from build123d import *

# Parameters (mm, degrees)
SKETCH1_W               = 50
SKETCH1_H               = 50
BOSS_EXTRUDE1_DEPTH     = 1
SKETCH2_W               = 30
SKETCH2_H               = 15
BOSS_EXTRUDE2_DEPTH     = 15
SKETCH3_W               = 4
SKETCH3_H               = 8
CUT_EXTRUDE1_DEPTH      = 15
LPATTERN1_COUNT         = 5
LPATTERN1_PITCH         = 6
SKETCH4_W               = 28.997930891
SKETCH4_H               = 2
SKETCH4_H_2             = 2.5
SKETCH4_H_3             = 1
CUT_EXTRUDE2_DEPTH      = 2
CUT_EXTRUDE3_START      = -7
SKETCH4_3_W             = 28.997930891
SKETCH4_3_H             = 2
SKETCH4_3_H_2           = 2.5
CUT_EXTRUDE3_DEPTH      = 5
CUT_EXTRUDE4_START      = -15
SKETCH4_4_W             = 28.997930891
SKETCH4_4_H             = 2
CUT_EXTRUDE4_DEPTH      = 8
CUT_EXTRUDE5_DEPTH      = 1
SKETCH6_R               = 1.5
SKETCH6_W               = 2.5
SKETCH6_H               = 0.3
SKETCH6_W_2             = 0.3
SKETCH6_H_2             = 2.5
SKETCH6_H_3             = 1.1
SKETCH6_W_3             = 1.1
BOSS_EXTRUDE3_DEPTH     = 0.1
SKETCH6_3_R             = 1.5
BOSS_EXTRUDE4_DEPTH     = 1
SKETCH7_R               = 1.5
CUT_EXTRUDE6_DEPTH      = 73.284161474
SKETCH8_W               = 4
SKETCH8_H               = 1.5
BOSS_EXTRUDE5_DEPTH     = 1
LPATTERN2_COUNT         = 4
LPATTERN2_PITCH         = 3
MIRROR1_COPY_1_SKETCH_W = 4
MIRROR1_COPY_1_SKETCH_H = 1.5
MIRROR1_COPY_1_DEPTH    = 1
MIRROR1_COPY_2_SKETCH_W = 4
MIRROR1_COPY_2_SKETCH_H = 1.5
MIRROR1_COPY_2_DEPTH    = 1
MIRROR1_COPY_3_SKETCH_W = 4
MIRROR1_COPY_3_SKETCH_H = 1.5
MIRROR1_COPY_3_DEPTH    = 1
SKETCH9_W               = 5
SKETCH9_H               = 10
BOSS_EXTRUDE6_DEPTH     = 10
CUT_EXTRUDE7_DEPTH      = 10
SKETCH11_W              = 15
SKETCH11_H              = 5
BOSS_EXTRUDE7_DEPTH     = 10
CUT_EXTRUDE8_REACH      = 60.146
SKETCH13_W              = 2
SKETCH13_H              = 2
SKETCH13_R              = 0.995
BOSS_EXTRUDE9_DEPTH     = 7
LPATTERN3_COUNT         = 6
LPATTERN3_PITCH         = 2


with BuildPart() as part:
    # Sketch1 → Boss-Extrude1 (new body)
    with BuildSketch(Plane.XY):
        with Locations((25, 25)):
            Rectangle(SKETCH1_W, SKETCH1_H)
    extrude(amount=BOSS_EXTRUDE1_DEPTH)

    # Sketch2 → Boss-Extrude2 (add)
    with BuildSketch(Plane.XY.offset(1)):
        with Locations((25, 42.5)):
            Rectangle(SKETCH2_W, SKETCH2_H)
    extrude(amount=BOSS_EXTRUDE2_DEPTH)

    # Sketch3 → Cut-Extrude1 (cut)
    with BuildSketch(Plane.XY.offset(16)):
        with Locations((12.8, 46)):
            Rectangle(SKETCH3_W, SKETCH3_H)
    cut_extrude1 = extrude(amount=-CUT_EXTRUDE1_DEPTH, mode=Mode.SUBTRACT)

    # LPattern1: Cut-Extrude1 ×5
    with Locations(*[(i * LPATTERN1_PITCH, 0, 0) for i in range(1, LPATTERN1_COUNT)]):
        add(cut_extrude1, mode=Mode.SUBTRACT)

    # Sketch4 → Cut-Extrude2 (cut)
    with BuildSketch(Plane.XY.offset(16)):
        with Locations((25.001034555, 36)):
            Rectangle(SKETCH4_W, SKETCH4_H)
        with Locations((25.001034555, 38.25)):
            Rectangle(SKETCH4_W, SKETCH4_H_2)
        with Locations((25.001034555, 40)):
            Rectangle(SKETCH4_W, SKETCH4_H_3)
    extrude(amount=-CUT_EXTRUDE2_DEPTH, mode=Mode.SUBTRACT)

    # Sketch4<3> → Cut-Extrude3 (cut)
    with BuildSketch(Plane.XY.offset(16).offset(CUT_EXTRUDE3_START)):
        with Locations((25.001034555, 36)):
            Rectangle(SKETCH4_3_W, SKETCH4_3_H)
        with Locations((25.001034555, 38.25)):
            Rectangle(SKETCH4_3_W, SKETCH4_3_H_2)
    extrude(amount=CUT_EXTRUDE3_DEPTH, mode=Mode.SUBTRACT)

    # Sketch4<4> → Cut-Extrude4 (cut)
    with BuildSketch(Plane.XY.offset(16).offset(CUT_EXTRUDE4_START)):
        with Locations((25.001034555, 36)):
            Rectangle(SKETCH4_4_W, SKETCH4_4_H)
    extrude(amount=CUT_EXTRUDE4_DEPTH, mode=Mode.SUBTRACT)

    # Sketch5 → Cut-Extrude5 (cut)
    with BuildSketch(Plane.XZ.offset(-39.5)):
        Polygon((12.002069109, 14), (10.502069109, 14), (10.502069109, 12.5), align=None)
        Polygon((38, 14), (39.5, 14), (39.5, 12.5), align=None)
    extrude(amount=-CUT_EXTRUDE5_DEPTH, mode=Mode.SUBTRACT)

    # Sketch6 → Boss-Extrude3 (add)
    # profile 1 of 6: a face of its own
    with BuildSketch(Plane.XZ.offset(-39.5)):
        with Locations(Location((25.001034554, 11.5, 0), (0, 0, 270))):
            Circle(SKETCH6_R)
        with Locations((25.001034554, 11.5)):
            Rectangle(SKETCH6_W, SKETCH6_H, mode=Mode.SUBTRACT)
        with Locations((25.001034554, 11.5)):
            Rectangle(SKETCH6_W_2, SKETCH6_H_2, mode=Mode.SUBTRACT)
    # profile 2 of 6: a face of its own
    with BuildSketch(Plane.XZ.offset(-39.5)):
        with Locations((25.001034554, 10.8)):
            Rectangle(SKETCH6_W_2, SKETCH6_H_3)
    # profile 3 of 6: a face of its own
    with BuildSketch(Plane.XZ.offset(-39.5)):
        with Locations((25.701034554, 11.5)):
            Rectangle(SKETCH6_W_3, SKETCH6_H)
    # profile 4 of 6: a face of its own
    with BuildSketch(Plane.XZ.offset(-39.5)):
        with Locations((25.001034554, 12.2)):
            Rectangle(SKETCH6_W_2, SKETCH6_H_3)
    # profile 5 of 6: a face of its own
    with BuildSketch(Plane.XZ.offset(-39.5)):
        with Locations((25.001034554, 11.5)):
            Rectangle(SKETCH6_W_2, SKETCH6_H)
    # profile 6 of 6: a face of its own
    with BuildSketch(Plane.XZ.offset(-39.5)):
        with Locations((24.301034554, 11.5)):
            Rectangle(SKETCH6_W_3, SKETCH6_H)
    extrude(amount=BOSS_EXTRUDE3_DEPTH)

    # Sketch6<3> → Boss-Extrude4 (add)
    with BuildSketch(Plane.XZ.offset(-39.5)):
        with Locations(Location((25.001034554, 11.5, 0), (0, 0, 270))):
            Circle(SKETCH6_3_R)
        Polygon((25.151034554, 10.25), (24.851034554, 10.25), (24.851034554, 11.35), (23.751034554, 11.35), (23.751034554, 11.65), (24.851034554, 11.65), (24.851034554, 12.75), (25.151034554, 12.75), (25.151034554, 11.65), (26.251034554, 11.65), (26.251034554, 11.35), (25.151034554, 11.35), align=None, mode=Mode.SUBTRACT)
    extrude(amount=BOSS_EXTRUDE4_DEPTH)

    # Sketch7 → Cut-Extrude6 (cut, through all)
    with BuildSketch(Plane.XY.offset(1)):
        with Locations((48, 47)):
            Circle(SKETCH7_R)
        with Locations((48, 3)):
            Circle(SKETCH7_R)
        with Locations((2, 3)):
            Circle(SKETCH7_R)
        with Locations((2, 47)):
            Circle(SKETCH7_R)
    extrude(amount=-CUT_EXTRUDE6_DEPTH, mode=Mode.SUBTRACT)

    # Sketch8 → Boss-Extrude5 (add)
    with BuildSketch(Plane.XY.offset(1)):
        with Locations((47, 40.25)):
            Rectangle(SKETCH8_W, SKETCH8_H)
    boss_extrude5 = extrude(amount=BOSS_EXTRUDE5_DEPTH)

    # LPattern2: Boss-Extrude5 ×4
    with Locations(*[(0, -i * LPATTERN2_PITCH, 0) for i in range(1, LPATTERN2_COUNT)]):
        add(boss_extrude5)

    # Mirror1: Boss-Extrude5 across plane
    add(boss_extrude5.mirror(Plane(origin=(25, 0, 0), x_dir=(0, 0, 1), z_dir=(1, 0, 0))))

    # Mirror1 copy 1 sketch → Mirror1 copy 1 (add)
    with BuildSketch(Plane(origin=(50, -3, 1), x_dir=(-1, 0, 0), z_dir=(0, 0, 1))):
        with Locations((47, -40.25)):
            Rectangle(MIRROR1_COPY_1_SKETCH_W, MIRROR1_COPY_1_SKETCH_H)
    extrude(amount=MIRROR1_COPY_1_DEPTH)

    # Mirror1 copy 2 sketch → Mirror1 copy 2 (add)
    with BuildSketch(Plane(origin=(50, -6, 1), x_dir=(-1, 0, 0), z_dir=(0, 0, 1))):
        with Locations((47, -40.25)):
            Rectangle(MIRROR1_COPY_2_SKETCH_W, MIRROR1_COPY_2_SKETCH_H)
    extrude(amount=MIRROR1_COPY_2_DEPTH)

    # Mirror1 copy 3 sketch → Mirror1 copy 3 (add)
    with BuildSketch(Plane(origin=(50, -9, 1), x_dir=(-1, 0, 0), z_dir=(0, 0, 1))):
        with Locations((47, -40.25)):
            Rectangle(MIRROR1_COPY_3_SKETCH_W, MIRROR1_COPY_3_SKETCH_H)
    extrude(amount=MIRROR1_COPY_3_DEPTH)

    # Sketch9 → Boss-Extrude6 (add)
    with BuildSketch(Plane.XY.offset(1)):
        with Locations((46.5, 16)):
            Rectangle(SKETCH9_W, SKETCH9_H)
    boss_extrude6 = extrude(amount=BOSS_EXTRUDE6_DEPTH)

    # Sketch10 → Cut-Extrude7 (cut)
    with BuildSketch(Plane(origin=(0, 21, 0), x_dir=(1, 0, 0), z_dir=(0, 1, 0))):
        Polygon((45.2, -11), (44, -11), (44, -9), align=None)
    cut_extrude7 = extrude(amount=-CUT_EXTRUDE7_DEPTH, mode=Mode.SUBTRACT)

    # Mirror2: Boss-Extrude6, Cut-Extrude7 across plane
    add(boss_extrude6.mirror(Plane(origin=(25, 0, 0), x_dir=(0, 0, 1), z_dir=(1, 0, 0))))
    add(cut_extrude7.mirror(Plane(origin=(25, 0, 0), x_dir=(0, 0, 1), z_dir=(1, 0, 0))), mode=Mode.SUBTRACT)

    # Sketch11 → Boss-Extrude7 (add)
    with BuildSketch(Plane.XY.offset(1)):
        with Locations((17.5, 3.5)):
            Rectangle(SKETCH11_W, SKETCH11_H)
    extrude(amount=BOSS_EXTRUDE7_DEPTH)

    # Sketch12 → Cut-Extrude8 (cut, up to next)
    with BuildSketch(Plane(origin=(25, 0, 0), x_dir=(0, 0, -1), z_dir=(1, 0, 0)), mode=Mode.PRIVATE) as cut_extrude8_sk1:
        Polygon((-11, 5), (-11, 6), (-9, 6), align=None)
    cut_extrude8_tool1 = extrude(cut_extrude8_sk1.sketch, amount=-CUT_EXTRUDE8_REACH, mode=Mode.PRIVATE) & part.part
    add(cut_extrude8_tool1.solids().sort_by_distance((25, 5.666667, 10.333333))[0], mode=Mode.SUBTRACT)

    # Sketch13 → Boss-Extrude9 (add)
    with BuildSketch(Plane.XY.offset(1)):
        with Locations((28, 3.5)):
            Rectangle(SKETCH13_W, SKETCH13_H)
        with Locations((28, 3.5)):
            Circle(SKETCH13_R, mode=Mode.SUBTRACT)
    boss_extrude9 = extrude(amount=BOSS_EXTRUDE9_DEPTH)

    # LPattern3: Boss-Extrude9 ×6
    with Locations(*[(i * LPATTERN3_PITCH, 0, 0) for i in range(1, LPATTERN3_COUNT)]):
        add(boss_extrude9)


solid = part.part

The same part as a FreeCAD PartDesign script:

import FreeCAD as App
import Part
import Sketcher
Q = App.Units.Quantity


def add_polygon(sketch, points):
    """Adds a closed chain of lines whose ends are joined by coincident constraints."""
    first, n = sketch.GeometryCount, len(points)
    for a, b in zip(points, points[1:] + points[:1]):
        sketch.addGeometry(Part.LineSegment(App.Vector(*a, 0), App.Vector(*b, 0)), False)
    for i in range(n):
        sketch.addConstraint(Sketcher.Constraint("Coincident", first + i, 2, first + (i + 1) % n, 1))

doc = App.newDocument("Part")
body = doc.addObject("PartDesign::Body", "Body")

sketch1 = doc.addObject("Sketcher::SketchObject", "Sketch")
body.addObject(sketch1)
sketch1.AttachmentSupport = (doc.XY_Plane, [""])
sketch1.MapMode = "FlatFace"
add_polygon(sketch1, [(0, 50), (0, 0), (50, 0), (50, 50)])
sketch1.addConstraint([
    Sketcher.Constraint("Vertical", 0),
    Sketcher.Constraint("Horizontal", 1),
    Sketcher.Constraint("Vertical", 2),
    Sketcher.Constraint("Horizontal", 3),
    Sketcher.Constraint("Coincident", 0, 2, -1, 1),
    Sketcher.Constraint("Equal", 3, 0),
    Sketcher.Constraint("DistanceX", 1, 1, 1, 2, Q("50 mm")),
])
pad1 = doc.addObject("PartDesign::Pad", "Pad")
body.addObject(pad1)
pad1.Profile = sketch1
pad1.Length = 1

sketch2 = doc.addObject("Sketcher::SketchObject", "Sketch001")
body.addObject(sketch2)
sketch2.AttachmentSupport = (doc.XY_Plane, [""])
sketch2.MapMode = "FlatFace"
sketch2.AttachmentOffset = App.Placement(App.Vector(0, 0, 1), App.Rotation())
add_polygon(sketch2, [(10, 50), (10, 35), (40, 35), (40, 50)])
sketch2.addConstraint([
    Sketcher.Constraint("Vertical", 0),
    Sketcher.Constraint("Horizontal", 1),
    Sketcher.Constraint("Vertical", 2),
    Sketcher.Constraint("Horizontal", 3),
    Sketcher.Constraint("DistanceX", 1, 1, 1, 2, Q("30 mm")),
    Sketcher.Constraint("DistanceY", 0, 2, 0, 1, Q("15 mm")),
    Sketcher.Constraint("DistanceX", -1, 1, 0, 2, Q("10 mm")),
    Sketcher.Constraint("DistanceY", -1, 1, 0, 2, Q("35 mm")),
])
pad2 = doc.addObject("PartDesign::Pad", "Pad001")
body.addObject(pad2)
pad2.Profile = sketch2
pad2.Length = 15

sketch3 = doc.addObject("Sketcher::SketchObject", "Sketch002")
body.addObject(sketch3)
sketch3.AttachmentSupport = (doc.XY_Plane, [""])
sketch3.MapMode = "FlatFace"
sketch3.AttachmentOffset = App.Placement(App.Vector(0, 0, 16), App.Rotation())
add_polygon(sketch3, [(10.8, 50), (10.8, 42), (14.8, 42), (14.8, 50)])
sketch3.addConstraint([
    Sketcher.Constraint("Vertical", 0),
    Sketcher.Constraint("Horizontal", 1),
    Sketcher.Constraint("Vertical", 2),
    Sketcher.Constraint("Horizontal", 3),
    Sketcher.Constraint("DistanceX", 1, 1, 1, 2, Q("4 mm")),
    Sketcher.Constraint("DistanceY", 0, 2, 0, 1, Q("8 mm")),
    Sketcher.Constraint("DistanceY", -1, 1, 0, 2, Q("42 mm")),
    Sketcher.Constraint("DistanceX", -1, 1, 0, 2, Q("10.8 mm")),
])
pocket1 = doc.addObject("PartDesign::Pocket", "Pocket")
body.addObject(pocket1)
pocket1.Profile = sketch3
pocket1.Length = 15
doc.recompute()

linearpattern = doc.addObject("PartDesign::LinearPattern", "LinearPattern")
body.addObject(linearpattern)
linearpattern.Originals = [pocket1]
linearpattern.Direction = (doc.X_Axis, [""])
linearpattern.Mode = "offset"
linearpattern.Offset = 6
linearpattern.Occurrences = 5
body.Tip = linearpattern

sketch4 = doc.addObject("Sketcher::SketchObject", "Sketch003")
body.addObject(sketch4)
sketch4.AttachmentSupport = (doc.XY_Plane, [""])
sketch4.MapMode = "FlatFace"
sketch4.AttachmentOffset = App.Placement(App.Vector(0, 0, 16), App.Rotation())
add_polygon(sketch4, [(10.502069, 35), (39.5, 35), (39.5, 40.5), (10.502069, 40.5)])
sketch4.addConstraint([
    Sketcher.Constraint("Horizontal", 0),
    Sketcher.Constraint("Vertical", 1),
    Sketcher.Constraint("Horizontal", 2),
    Sketcher.Constraint("Vertical", 3),
    Sketcher.Constraint("DistanceY", 1, 1, 1, 2, Q("5.5 mm")),
    Sketcher.Constraint("DistanceY", -1, 1, 0, 2, Q("35 mm")),
    Sketcher.Constraint("DistanceX", -1, 1, 0, 2, Q("39.5 mm")),
    Sketcher.Constraint("DistanceX", 0, 1, 0, 2, Q("28.997931 mm")),
])
pocket2 = doc.addObject("PartDesign::Pocket", "Pocket001")
body.addObject(pocket2)
pocket2.Profile = sketch4
pocket2.Length = 2

sketch5 = doc.addObject("Sketcher::SketchObject", "Sketch004")
body.addObject(sketch5)
sketch5.AttachmentSupport = (doc.XY_Plane, [""])
sketch5.MapMode = "FlatFace"
sketch5.AttachmentOffset = App.Placement(App.Vector(0, 0, 9), App.Rotation())
add_polygon(sketch5, [(10.502069, 35), (39.5, 35), (39.5, 39.5), (10.502069, 39.5)])
sketch5.addConstraint([
    Sketcher.Constraint("Horizontal", 0),
    Sketcher.Constraint("Vertical", 1),
    Sketcher.Constraint("Horizontal", 2),
    Sketcher.Constraint("Vertical", 3),
    Sketcher.Constraint("DistanceY", 1, 1, 1, 2, Q("4.5 mm")),
    Sketcher.Constraint("DistanceY", -1, 1, 0, 2, Q("35 mm")),
    Sketcher.Constraint("DistanceX", -1, 1, 0, 2, Q("39.5 mm")),
    Sketcher.Constraint("DistanceX", 0, 1, 0, 2, Q("28.997931 mm")),
])
pocket3 = doc.addObject("PartDesign::Pocket", "Pocket002")
body.addObject(pocket3)
pocket3.Profile = sketch5
pocket3.Length = 5
pocket3.Reversed = True

sketch6 = doc.addObject("Sketcher::SketchObject", "Sketch005")
body.addObject(sketch6)
sketch6.AttachmentSupport = (doc.XY_Plane, [""])
sketch6.MapMode = "FlatFace"
sketch6.AttachmentOffset = App.Placement(App.Vector(0, 0, 1), App.Rotation())
add_polygon(sketch6, [(10.502069, 37), (10.502069, 35), (39.5, 35), (39.5, 37)])
sketch6.addConstraint([
    Sketcher.Constraint("Vertical", 0),
    Sketcher.Constraint("Horizontal", 1),
    Sketcher.Constraint("Vertical", 2),
    Sketcher.Constraint("Horizontal", 3),
    Sketcher.Constraint("DistanceY", 0, 2, 0, 1, Q("2 mm")),
    Sketcher.Constraint("DistanceY", -1, 1, 0, 2, Q("35 mm")),
    Sketcher.Constraint("DistanceX", -1, 1, 1, 2, Q("39.5 mm")),
    Sketcher.Constraint("DistanceX", 1, 1, 1, 2, Q("28.997931 mm")),
])
pocket4 = doc.addObject("PartDesign::Pocket", "Pocket003")
body.addObject(pocket4)
pocket4.Profile = sketch6
pocket4.Length = 8
pocket4.Reversed = True

sketch7 = doc.addObject("Sketcher::SketchObject", "Sketch006")
body.addObject(sketch7)
sketch7.AttachmentSupport = (doc.XZ_Plane, [""])
sketch7.MapMode = "FlatFace"
sketch7.AttachmentOffset = App.Placement(App.Vector(0, 0, -39.5), App.Rotation())
add_polygon(sketch7, [(12.002069, 14), (10.502069, 14), (10.502069, 12.5)])
add_polygon(sketch7, [(39.5, 14), (38, 14), (39.5, 12.5)])
sketch7.addConstraint([
    Sketcher.Constraint("Horizontal", 0),
    Sketcher.Constraint("Vertical", 1),
    Sketcher.Constraint("Horizontal", 3),
    Sketcher.Constraint("Vertical", 5),
    Sketcher.Constraint("Perpendicular", 2, 4),
    Sketcher.Constraint("Horizontal", 2, 2, 3, 2),
    Sketcher.Constraint("Horizontal", 1, 2, 4, 2),
    Sketcher.Constraint("Equal", 0, 3),
    Sketcher.Constraint("DistanceX", 0, 2, 0, 1, Q("1.5 mm")),
    Sketcher.Constraint("DistanceY", -1, 1, 0, 2, Q("14 mm")),
    Sketcher.Constraint("DistanceX", -1, 1, 3, 2, Q("38 mm")),
    Sketcher.Constraint("DistanceX", -1, 1, 0, 2, Q("10.502069 mm")),
])
pocket5 = doc.addObject("PartDesign::Pocket", "Pocket004")
body.addObject(pocket5)
pocket5.Profile = sketch7
pocket5.Length = 1

sketch8 = doc.addObject("Sketcher::SketchObject", "Sketch007")
body.addObject(sketch8)
sketch8.AttachmentSupport = (doc.XZ_Plane, [""])
sketch8.MapMode = "FlatFace"
sketch8.AttachmentOffset = App.Placement(App.Vector(0, 0, -39.5), App.Rotation())
sketch8.addGeometry(Part.Circle(App.Vector(25.001035, 11.5, 0), App.Vector(0, 0, 1), 1.5), False)
sketch8.addConstraint([
    Sketcher.Constraint("Diameter", 0, Q("3 mm")),
    Sketcher.Constraint("DistanceY", -1, 1, 0, 3, Q("11.5 mm")),
    Sketcher.Constraint("DistanceX", -1, 1, 0, 3, Q("25.001035 mm")),
])
pad3 = doc.addObject("PartDesign::Pad", "Pad002")
body.addObject(pad3)
pad3.Profile = sketch8
pad3.Length = 0.1

sketch9 = doc.addObject("Sketcher::SketchObject", "Sketch008")
body.addObject(sketch9)
sketch9.AttachmentSupport = (doc.XZ_Plane, [""])
sketch9.MapMode = "FlatFace"
sketch9.AttachmentOffset = App.Placement(App.Vector(0, 0, -39.5), App.Rotation())
sketch9.addGeometry(Part.Circle(App.Vector(25.001035, 11.5, 0), App.Vector(0, 0, 1), 1.5), False)
add_polygon(sketch9, [(25.151035, 11.35), (25.151035, 10.25), (24.851035, 10.25), (24.851035, 11.35), (23.751035, 11.35), (23.751035, 11.65), (24.851035, 11.65), (24.851035, 12.75), (25.151035, 12.75), (25.151035, 11.65), (26.251035, 11.65), (26.251035, 11.35)])
sketch9.addConstraint([
    Sketcher.Constraint("Vertical", 1),
    Sketcher.Constraint("Horizontal", 2),
    Sketcher.Constraint("Vertical", 3),
    Sketcher.Constraint("Horizontal", 4),
    Sketcher.Constraint("Vertical", 5),
    Sketcher.Constraint("Horizontal", 6),
    Sketcher.Constraint("Vertical", 7),
    Sketcher.Constraint("Horizontal", 8),
    Sketcher.Constraint("Vertical", 9),
    Sketcher.Constraint("Horizontal", 10),
    Sketcher.Constraint("Vertical", 11),
    Sketcher.Constraint("Horizontal", 12),
    Sketcher.Constraint("Horizontal", 6, 2, 9, 2),
    Sketcher.Constraint("Horizontal", 4, 2, 11, 2),
    Sketcher.Constraint("Vertical", 3, 2, 6, 2),
    Sketcher.Constraint("Vertical", 1, 2, 8, 2),
    Sketcher.Constraint("Equal", 6, 10),
    Sketcher.Constraint("Equal", 12, 1),
    Sketcher.Constraint("Equal", 8, 5),
    Sketcher.Constraint("Equal", 3, 7),
    Sketcher.Constraint("Diameter", 0, Q("3 mm")),
    Sketcher.Constraint("DistanceX", 2, 2, 2, 1, Q("0.3 mm")),
    Sketcher.Constraint("DistanceX", 4, 2, 4, 1, Q("1.1 mm")),
    Sketcher.Constraint("DistanceY", -1, 1, 0, 3, Q("11.5 mm")),
    Sketcher.Constraint("DistanceY", -1, 1, 1, 2, Q("10.25 mm")),
    Sketcher.Constraint("DistanceX", 0, 3, 1, 2, Q("0.15 mm")),
    Sketcher.Constraint("DistanceX", -1, 1, 0, 3, Q("25.001035 mm")),
])
pad4 = doc.addObject("PartDesign::Pad", "Pad003")
body.addObject(pad4)
pad4.Profile = sketch9
pad4.Length = 1

sketch10 = doc.addObject("Sketcher::SketchObject", "Sketch009")
body.addObject(sketch10)
sketch10.AttachmentSupport = (doc.XY_Plane, [""])
sketch10.MapMode = "FlatFace"
sketch10.AttachmentOffset = App.Placement(App.Vector(0, 0, 1), App.Rotation())
sketch10.addGeometry([
    Part.Circle(App.Vector(48, 47, 0), App.Vector(0, 0, 1), 1.5),
    Part.Circle(App.Vector(48, 3, 0), App.Vector(0, 0, 1), 1.5),
    Part.Circle(App.Vector(2, 3, 0), App.Vector(0, 0, 1), 1.5),
    Part.Circle(App.Vector(2, 47, 0), App.Vector(0, 0, 1), 1.5),
], False)
sketch10.addConstraint([
    Sketcher.Constraint("Equal", 0, 1),
    Sketcher.Constraint("Equal", 1, 2),
    Sketcher.Constraint("Equal", 2, 3),
    Sketcher.Constraint("Horizontal", 1, 3, 2, 3),
    Sketcher.Constraint("Horizontal", 0, 3, 3, 3),
    Sketcher.Constraint("Vertical", 0, 3, 1, 3),
    Sketcher.Constraint("Vertical", 2, 3, 3, 3),
    Sketcher.Constraint("Diameter", 0, Q("3 mm")),
    Sketcher.Constraint("DistanceX", -1, 1, 0, 3, Q("48 mm")),
    Sketcher.Constraint("DistanceY", -1, 1, 0, 3, Q("47 mm")),
    Sketcher.Constraint("DistanceY", -1, 1, 1, 3, Q("3 mm")),
    Sketcher.Constraint("DistanceX", -1, 1, 2, 3, Q("2 mm")),
])
pocket6 = doc.addObject("PartDesign::Pocket", "Pocket005")
body.addObject(pocket6)
pocket6.Profile = sketch10
pocket6.Type = "ThroughAll"

sketch11 = doc.addObject("Sketcher::SketchObject", "Sketch010")
body.addObject(sketch11)
sketch11.AttachmentSupport = (doc.XY_Plane, [""])
sketch11.MapMode = "FlatFace"
sketch11.AttachmentOffset = App.Placement(App.Vector(0, 0, 1), App.Rotation())
add_polygon(sketch11, [(45, 41), (45, 39.5), (49, 39.5), (49, 41)])
sketch11.addConstraint([
    Sketcher.Constraint("Vertical", 0),
    Sketcher.Constraint("Horizontal", 1),
    Sketcher.Constraint("Vertical", 2),
    Sketcher.Constraint("Horizontal", 3),
    Sketcher.Constraint("DistanceX", 1, 1, 1, 2, Q("4 mm")),
    Sketcher.Constraint("DistanceY", 0, 2, 0, 1, Q("1.5 mm")),
    Sketcher.Constraint("DistanceX", -1, 1, 0, 2, Q("45 mm")),
    Sketcher.Constraint("DistanceY", -1, 1, 2, 2, Q("41 mm")),
])
pad5 = doc.addObject("PartDesign::Pad", "Pad004")
body.addObject(pad5)
pad5.Profile = sketch11
pad5.Length = 1
doc.recompute()

linearpattern2 = doc.addObject("PartDesign::LinearPattern", "LinearPattern001")
body.addObject(linearpattern2)
linearpattern2.Originals = [pad5]
linearpattern2.Direction = (doc.Y_Axis, [""])
linearpattern2.Mode = "offset"
linearpattern2.Offset = 3
linearpattern2.Occurrences = 4
linearpattern2.Reversed = True
body.Tip = linearpattern2
doc.recompute()

datumplane = doc.addObject("PartDesign::Plane", "DatumPlane")
body.addObject(datumplane)
datumplane.AttachmentSupport = (doc.YZ_Plane, [""])
datumplane.MapMode = "FlatFace"
datumplane.AttachmentOffset = App.Placement(App.Vector(0, 0, 25), App.Rotation())
mirrored = doc.addObject("PartDesign::Mirrored", "Mirrored")
body.addObject(mirrored)
mirrored.Originals = [pad5]
mirrored.MirrorPlane = (datumplane, [""])
body.Tip = mirrored

sketch12 = doc.addObject("Sketcher::SketchObject", "Sketch011")
body.addObject(sketch12)
sketch12.AttachmentSupport = (doc.XY_Plane, [""])
sketch12.MapMode = "FlatFace"
sketch12.AttachmentOffset = App.Placement(App.Vector(0, 0, 1), App.Rotation())
add_polygon(sketch12, [(5, 36.5), (5, 38), (1, 38), (1, 36.5)])
sketch12.addConstraint([
    Sketcher.Constraint("Vertical", 0),
    Sketcher.Constraint("Horizontal", 1),
    Sketcher.Constraint("Vertical", 2),
    Sketcher.Constraint("Horizontal", 3),
    Sketcher.Constraint("DistanceX", 1, 2, 1, 1, Q("4 mm")),
    Sketcher.Constraint("DistanceY", 0, 1, 0, 2, Q("1.5 mm")),
    Sketcher.Constraint("DistanceX", -1, 1, 0, 2, Q("5 mm")),
    Sketcher.Constraint("DistanceY", -1, 1, 0, 2, Q("38 mm")),
])
pad6 = doc.addObject("PartDesign::Pad", "Pad005")
body.addObject(pad6)
pad6.Profile = sketch12
pad6.Length = 1

sketch13 = doc.addObject("Sketcher::SketchObject", "Sketch012")
body.addObject(sketch13)
sketch13.AttachmentSupport = (doc.XY_Plane, [""])
sketch13.MapMode = "FlatFace"
sketch13.AttachmentOffset = App.Placement(App.Vector(0, 0, 1), App.Rotation())
add_polygon(sketch13, [(5, 33.5), (5, 35), (1, 35), (1, 33.5)])
sketch13.addConstraint([
    Sketcher.Constraint("Vertical", 0),
    Sketcher.Constraint("Horizontal", 1),
    Sketcher.Constraint("Vertical", 2),
    Sketcher.Constraint("Horizontal", 3),
    Sketcher.Constraint("DistanceX", 1, 2, 1, 1, Q("4 mm")),
    Sketcher.Constraint("DistanceY", 0, 1, 0, 2, Q("1.5 mm")),
    Sketcher.Constraint("DistanceX", -1, 1, 0, 2, Q("5 mm")),
    Sketcher.Constraint("DistanceY", -1, 1, 0, 2, Q("35 mm")),
])
pad7 = doc.addObject("PartDesign::Pad", "Pad006")
body.addObject(pad7)
pad7.Profile = sketch13
pad7.Length = 1

sketch14 = doc.addObject("Sketcher::SketchObject", "Sketch013")
body.addObject(sketch14)
sketch14.AttachmentSupport = (doc.XY_Plane, [""])
sketch14.MapMode = "FlatFace"
sketch14.AttachmentOffset = App.Placement(App.Vector(0, 0, 1), App.Rotation())
add_polygon(sketch14, [(5, 30.5), (5, 32), (1, 32), (1, 30.5)])
sketch14.addConstraint([
    Sketcher.Constraint("Vertical", 0),
    Sketcher.Constraint("Horizontal", 1),
    Sketcher.Constraint("Vertical", 2),
    Sketcher.Constraint("Horizontal", 3),
    Sketcher.Constraint("DistanceX", 1, 2, 1, 1, Q("4 mm")),
    Sketcher.Constraint("DistanceY", 0, 1, 0, 2, Q("1.5 mm")),
    Sketcher.Constraint("DistanceX", -1, 1, 0, 2, Q("5 mm")),
    Sketcher.Constraint("DistanceY", -1, 1, 0, 2, Q("32 mm")),
])
pad8 = doc.addObject("PartDesign::Pad", "Pad007")
body.addObject(pad8)
pad8.Profile = sketch14
pad8.Length = 1

sketch15 = doc.addObject("Sketcher::SketchObject", "Sketch014")
body.addObject(sketch15)
sketch15.AttachmentSupport = (doc.XY_Plane, [""])
sketch15.MapMode = "FlatFace"
sketch15.AttachmentOffset = App.Placement(App.Vector(0, 0, 1), App.Rotation())
add_polygon(sketch15, [(44, 21), (44, 11), (49, 11), (49, 21)])
sketch15.addConstraint([
    Sketcher.Constraint("Vertical", 0),
    Sketcher.Constraint("Horizontal", 1),
    Sketcher.Constraint("Vertical", 2),
    Sketcher.Constraint("Horizontal", 3),
    Sketcher.Constraint("DistanceX", 1, 1, 1, 2, Q("5 mm")),
    Sketcher.Constraint("DistanceY", 0, 2, 0, 1, Q("10 mm")),
    Sketcher.Constraint("DistanceX", -1, 1, 0, 2, Q("44 mm")),
    Sketcher.Constraint("DistanceY", -1, 1, 0, 2, Q("11 mm")),
])
pad9 = doc.addObject("PartDesign::Pad", "Pad008")
body.addObject(pad9)
pad9.Profile = sketch15
pad9.Length = 10

sketch16 = doc.addObject("Sketcher::SketchObject", "Sketch015")
body.addObject(sketch16)
sketch16.AttachmentSupport = (doc.XZ_Plane, [""])
sketch16.MapMode = "FlatFace"
sketch16.AttachmentOffset = App.Placement(App.Vector(0, 0, -21), App.Rotation())
add_polygon(sketch16, [(44, 11), (45.2, 11), (44, 9)])
sketch16.addConstraint([
    Sketcher.Constraint("Horizontal", 0),
    Sketcher.Constraint("Vertical", 2),
    Sketcher.Constraint("DistanceY", 2, 1, 2, 2, Q("2 mm")),
    Sketcher.Constraint("DistanceX", 0, 1, 0, 2, Q("1.2 mm")),
    Sketcher.Constraint("DistanceY", -1, 1, 0, 2, Q("11 mm")),
    Sketcher.Constraint("DistanceX", -1, 1, 1, 2, Q("44 mm")),
])
pocket7 = doc.addObject("PartDesign::Pocket", "Pocket006")
body.addObject(pocket7)
pocket7.Profile = sketch16
pocket7.Length = 10
pocket7.Reversed = True
doc.recompute()

datumplane2 = doc.addObject("PartDesign::Plane", "DatumPlane001")
body.addObject(datumplane2)
datumplane2.AttachmentSupport = (doc.YZ_Plane, [""])
datumplane2.MapMode = "FlatFace"
datumplane2.AttachmentOffset = App.Placement(App.Vector(0, 0, 25), App.Rotation())
mirrored2 = doc.addObject("PartDesign::Mirrored", "Mirrored001")
body.addObject(mirrored2)
mirrored2.Originals = [pad9, pocket7]
mirrored2.MirrorPlane = (datumplane2, [""])
body.Tip = mirrored2

sketch17 = doc.addObject("Sketcher::SketchObject", "Sketch016")
body.addObject(sketch17)
sketch17.AttachmentSupport = (doc.XY_Plane, [""])
sketch17.MapMode = "FlatFace"
sketch17.AttachmentOffset = App.Placement(App.Vector(0, 0, 1), App.Rotation())
add_polygon(sketch17, [(10, 6), (10, 1), (25, 1), (25, 6)])
sketch17.addConstraint([
    Sketcher.Constraint("Vertical", 0),
    Sketcher.Constraint("Horizontal", 1),
    Sketcher.Constraint("Vertical", 2),
    Sketcher.Constraint("Horizontal", 3),
    Sketcher.Constraint("DistanceX", 1, 1, 1, 2, Q("15 mm")),
    Sketcher.Constraint("DistanceY", 0, 2, 0, 1, Q("5 mm")),
    Sketcher.Constraint("DistanceX", -1, 1, 0, 2, Q("10 mm")),
    Sketcher.Constraint("DistanceY", -1, 1, 0, 2, Q("1 mm")),
])
pad10 = doc.addObject("PartDesign::Pad", "Pad009")
body.addObject(pad10)
pad10.Profile = sketch17
pad10.Length = 10

sketch18 = doc.addObject("Sketcher::SketchObject", "Sketch017")
body.addObject(sketch18)
sketch18.AttachmentSupport = (doc.YZ_Plane, [""])
sketch18.MapMode = "FlatFace"
sketch18.AttachmentOffset = App.Placement(App.Vector(0, 0, 25), App.Rotation())
add_polygon(sketch18, [(6, 11), (5, 11), (6, 9)])
sketch18.addConstraint([
    Sketcher.Constraint("Horizontal", 0),
    Sketcher.Constraint("Vertical", 2),
    Sketcher.Constraint("DistanceX", 0, 2, 0, 1, Q("1 mm")),
    Sketcher.Constraint("DistanceY", 2, 1, 2, 2, Q("2 mm")),
    Sketcher.Constraint("DistanceX", -1, 1, 0, 2, Q("5 mm")),
    Sketcher.Constraint("DistanceY", -1, 1, 0, 2, Q("11 mm")),
])
pocket8 = doc.addObject("PartDesign::Pocket", "Pocket007")
body.addObject(pocket8)
pocket8.Profile = sketch18
pocket8.Type = "UpToFirst"

sketch19 = doc.addObject("Sketcher::SketchObject", "Sketch018")
body.addObject(sketch19)
sketch19.AttachmentSupport = (doc.XY_Plane, [""])
sketch19.MapMode = "FlatFace"
sketch19.AttachmentOffset = App.Placement(App.Vector(0, 0, 1), App.Rotation())
add_polygon(sketch19, [(27, 4.5), (27, 2.5), (29, 2.5), (29, 4.5)])
sketch19.addGeometry(Part.Circle(App.Vector(28, 3.5, 0), App.Vector(0, 0, 1), 0.995), False)
sketch19.addConstraint([
    Sketcher.Constraint("Vertical", 0),
    Sketcher.Constraint("Horizontal", 1),
    Sketcher.Constraint("Vertical", 2),
    Sketcher.Constraint("Horizontal", 3),
    Sketcher.Constraint("Equal", 3, 0),
    Sketcher.Constraint("Diameter", 4, Q("1.99 mm")),
    Sketcher.Constraint("DistanceX", 1, 1, 1, 2, Q("2 mm")),
    Sketcher.Constraint("DistanceX", -1, 1, 4, 3, Q("28 mm")),
    Sketcher.Constraint("DistanceX", -1, 1, 0, 2, Q("27 mm")),
    Sketcher.Constraint("DistanceY", 0, 2, 4, 3, Q("1 mm")),
    Sketcher.Constraint("DistanceY", -1, 1, 4, 3, Q("3.5 mm")),
])
pad11 = doc.addObject("PartDesign::Pad", "Pad010")
body.addObject(pad11)
pad11.Profile = sketch19
pad11.Length = 7
doc.recompute()

linearpattern3 = doc.addObject("PartDesign::LinearPattern", "LinearPattern002")
body.addObject(linearpattern3)
linearpattern3.Originals = [pad11]
linearpattern3.Direction = (doc.X_Axis, [""])
linearpattern3.Mode = "offset"
linearpattern3.Offset = 2
linearpattern3.Occurrences = 6
body.Tip = linearpattern3

doc.recompute()
